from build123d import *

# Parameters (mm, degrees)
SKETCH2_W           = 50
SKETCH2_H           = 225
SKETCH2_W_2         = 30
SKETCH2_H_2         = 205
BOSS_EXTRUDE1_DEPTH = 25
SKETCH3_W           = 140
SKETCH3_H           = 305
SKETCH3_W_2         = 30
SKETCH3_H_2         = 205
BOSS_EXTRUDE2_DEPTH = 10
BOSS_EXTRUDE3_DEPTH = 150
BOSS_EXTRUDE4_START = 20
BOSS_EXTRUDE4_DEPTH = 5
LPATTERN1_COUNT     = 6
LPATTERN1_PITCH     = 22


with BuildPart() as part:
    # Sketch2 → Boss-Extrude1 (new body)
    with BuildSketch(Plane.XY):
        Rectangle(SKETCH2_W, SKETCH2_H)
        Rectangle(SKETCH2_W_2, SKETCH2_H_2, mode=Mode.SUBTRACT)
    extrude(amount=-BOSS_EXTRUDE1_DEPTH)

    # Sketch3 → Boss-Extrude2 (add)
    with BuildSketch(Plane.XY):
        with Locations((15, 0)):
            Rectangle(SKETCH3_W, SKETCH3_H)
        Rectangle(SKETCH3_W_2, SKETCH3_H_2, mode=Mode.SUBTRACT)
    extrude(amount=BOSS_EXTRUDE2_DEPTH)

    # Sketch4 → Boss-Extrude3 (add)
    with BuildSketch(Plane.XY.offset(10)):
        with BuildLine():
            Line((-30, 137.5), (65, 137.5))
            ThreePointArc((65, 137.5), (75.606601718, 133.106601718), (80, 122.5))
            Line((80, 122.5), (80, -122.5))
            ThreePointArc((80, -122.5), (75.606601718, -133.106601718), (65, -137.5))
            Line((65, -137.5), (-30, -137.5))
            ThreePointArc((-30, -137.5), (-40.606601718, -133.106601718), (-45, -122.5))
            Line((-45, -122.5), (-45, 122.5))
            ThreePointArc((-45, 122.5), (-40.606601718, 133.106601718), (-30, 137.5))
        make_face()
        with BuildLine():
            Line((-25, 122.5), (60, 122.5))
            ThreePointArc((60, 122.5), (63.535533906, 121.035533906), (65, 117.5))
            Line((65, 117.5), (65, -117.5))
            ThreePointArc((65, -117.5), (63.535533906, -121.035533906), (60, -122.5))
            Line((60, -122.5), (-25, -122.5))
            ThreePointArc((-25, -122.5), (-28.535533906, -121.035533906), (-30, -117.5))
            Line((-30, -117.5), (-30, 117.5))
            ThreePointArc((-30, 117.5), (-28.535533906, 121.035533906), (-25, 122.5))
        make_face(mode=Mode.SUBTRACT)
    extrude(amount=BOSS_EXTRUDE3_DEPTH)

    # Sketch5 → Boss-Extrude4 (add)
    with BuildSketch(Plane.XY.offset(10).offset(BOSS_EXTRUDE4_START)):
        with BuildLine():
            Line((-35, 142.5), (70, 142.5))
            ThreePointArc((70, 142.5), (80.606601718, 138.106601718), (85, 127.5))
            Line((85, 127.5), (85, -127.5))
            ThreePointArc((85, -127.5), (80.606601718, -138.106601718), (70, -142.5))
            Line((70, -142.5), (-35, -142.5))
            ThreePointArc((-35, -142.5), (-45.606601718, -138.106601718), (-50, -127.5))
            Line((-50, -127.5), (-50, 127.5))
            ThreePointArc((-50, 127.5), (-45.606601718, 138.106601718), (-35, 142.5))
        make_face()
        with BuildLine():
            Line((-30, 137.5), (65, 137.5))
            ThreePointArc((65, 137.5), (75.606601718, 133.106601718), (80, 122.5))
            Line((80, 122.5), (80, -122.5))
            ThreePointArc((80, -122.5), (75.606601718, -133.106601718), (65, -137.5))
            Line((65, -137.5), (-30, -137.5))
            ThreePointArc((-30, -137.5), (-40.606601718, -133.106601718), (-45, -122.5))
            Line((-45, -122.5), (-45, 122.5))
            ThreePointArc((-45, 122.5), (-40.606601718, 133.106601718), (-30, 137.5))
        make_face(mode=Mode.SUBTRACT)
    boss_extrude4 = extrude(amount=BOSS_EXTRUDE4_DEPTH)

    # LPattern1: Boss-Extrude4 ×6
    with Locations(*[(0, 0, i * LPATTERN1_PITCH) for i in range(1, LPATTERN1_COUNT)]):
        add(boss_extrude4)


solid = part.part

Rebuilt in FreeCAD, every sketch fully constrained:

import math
import FreeCAD as App
import Part
import Sketcher

V = App.Vector
Q = App.Units.Quantity

doc = App.newDocument("Part")
body = doc.addObject("PartDesign::Body", "Body")

sketch1 = body.newObject("Sketcher::SketchObject", "Sketch")
sketch1.AttachmentSupport = (doc.getObject("XY_Plane"), [""])
sketch1.MapMode = "FlatFace"
sketch1.addGeometry(Part.LineSegment(V(-25, 112, 0), V(-25, -112, 0)), False)
sketch1.addGeometry(Part.LineSegment(V(-25, -112, 0), V(25, -112, 0)), False)
sketch1.addGeometry(Part.LineSegment(V(25, -112, 0), V(25, 112, 0)), False)
sketch1.addGeometry(Part.LineSegment(V(25, 112, 0), V(-25, 112, 0)), False)
sketch1.addGeometry(Part.LineSegment(V(15, -102, 0), V(-15, -102, 0)), False)
sketch1.addGeometry(Part.LineSegment(V(-15, -102, 0), V(-15, 102, 0)), False)
sketch1.addGeometry(Part.LineSegment(V(-15, 102, 0), V(15, 102, 0)), False)
sketch1.addGeometry(Part.LineSegment(V(15, 102, 0), V(15, -102, 0)), False)
sketch1.addConstraint(Sketcher.Constraint("Coincident", 0, 2, 1, 1))
sketch1.addConstraint(Sketcher.Constraint("Coincident", 1, 2, 2, 1))
sketch1.addConstraint(Sketcher.Constraint("Coincident", 2, 2, 3, 1))
sketch1.addConstraint(Sketcher.Constraint("Coincident", 3, 2, 0, 1))
sketch1.addConstraint(Sketcher.Constraint("Coincident", 4, 2, 5, 1))
sketch1.addConstraint(Sketcher.Constraint("Coincident", 5, 2, 6, 1))
sketch1.addConstraint(Sketcher.Constraint("Coincident", 6, 2, 7, 1))
sketch1.addConstraint(Sketcher.Constraint("Coincident", 7, 2, 4, 1))
sketch1.addConstraint(Sketcher.Constraint("Vertical", 0))
sketch1.addConstraint(Sketcher.Constraint("Horizontal", 1))
sketch1.addConstraint(Sketcher.Constraint("Vertical", 2))
sketch1.addConstraint(Sketcher.Constraint("Horizontal", 3))
sketch1.addConstraint(Sketcher.Constraint("Horizontal", 4))
sketch1.addConstraint(Sketcher.Constraint("Vertical", 5))
sketch1.addConstraint(Sketcher.Constraint("Horizontal", 6))
sketch1.addConstraint(Sketcher.Constraint("Vertical", 7))
sketch1.addConstraint(Sketcher.Constraint("Symmetric", 0, 2, 2, 2, -1, 1))
sketch1.addConstraint(Sketcher.Constraint("Symmetric", 4, 2, 6, 2, -1, 1))
sketch1.addConstraint(Sketcher.Constraint("DistanceX", 1, 1, 1, 2, Q("50 mm")))
sketch1.addConstraint(Sketcher.Constraint("DistanceX", 4, 2, 4, 1, Q("30 mm")))
sketch1.addConstraint(Sketcher.Constraint("DistanceY", 0, 2, 0, 1, Q("225 mm")))
sketch1.addConstraint(Sketcher.Constraint("DistanceY", 5, 1, 5, 2, Q("205 mm")))
pad1 = body.newObject("PartDesign::Pad", "Pad")
pad1.Profile = sketch1
pad1.Length = 25
pad1.Reversed = True

sketch2 = body.newObject("Sketcher::SketchObject", "Sketch001")
sketch2.AttachmentSupport = (doc.getObject("XY_Plane"), [""])
sketch2.MapMode = "FlatFace"
sketch2.addGeometry(Part.LineSegment(V(-55, 152, 0), V(-55, -152, 0)), False)
sketch2.addGeometry(Part.LineSegment(V(-55, -152, 0), V(85, -152, 0)), False)
sketch2.addGeometry(Part.LineSegment(V(85, -152, 0), V(85, 152, 0)), False)
sketch2.addGeometry(Part.LineSegment(V(85, 152, 0), V(-55, 152, 0)), False)
sketch2.addGeometry(Part.LineSegment(V(15, -102, 0), V(-15, -102, 0)), False)
sketch2.addGeometry(Part.LineSegment(V(-15, -102, 0), V(-15, 102, 0)), False)
sketch2.addGeometry(Part.LineSegment(V(-15, 102, 0), V(15, 102, 0)), False)
sketch2.addGeometry(Part.LineSegment(V(15, 102, 0), V(15, -102, 0)), False)
sketch2.addConstraint(Sketcher.Constraint("Coincident", 0, 2, 1, 1))
sketch2.addConstraint(Sketcher.Constraint("Coincident", 1, 2, 2, 1))
sketch2.addConstraint(Sketcher.Constraint("Coincident", 2, 2, 3, 1))
sketch2.addConstraint(Sketcher.Constraint("Coincident", 3, 2, 0, 1))
sketch2.addConstraint(Sketcher.Constraint("Coincident", 4, 2, 5, 1))
sketch2.addConstraint(Sketcher.Constraint("Coincident", 5, 2, 6, 1))
sketch2.addConstraint(Sketcher.Constraint("Coincident", 6, 2, 7, 1))
sketch2.addConstraint(Sketcher.Constraint("Coincident", 7, 2, 4, 1))
sketch2.addConstraint(Sketcher.Constraint("Vertical", 0))
sketch2.addConstraint(Sketcher.Constraint("Horizontal", 1))
sketch2.addConstraint(Sketcher.Constraint("Vertical", 2))
sketch2.addConstraint(Sketcher.Constraint("Horizontal", 3))
sketch2.addConstraint(Sketcher.Constraint("Horizontal", 4))
sketch2.addConstraint(Sketcher.Constraint("Vertical", 5))
sketch2.addConstraint(Sketcher.Constraint("Horizontal", 6))
sketch2.addConstraint(Sketcher.Constraint("Vertical", 7))
sketch2.addConstraint(Sketcher.Constraint("Symmetric", 4, 2, 6, 2, -1, 1))
sketch2.addConstraint(Sketcher.Constraint("DistanceX", 1, 1, 1, 2, Q("140 mm")))
sketch2.addConstraint(Sketcher.Constraint("DistanceX", 4, 2, 4, 1, Q("30 mm")))
sketch2.addConstraint(Sketcher.Constraint("DistanceY", 0, 2, 0, 1, Q("305 mm")))
sketch2.addConstraint(Sketcher.Constraint("DistanceY", 5, 1, 5, 2, Q("205 mm")))
sketch2.addConstraint(Sketcher.Constraint("DistanceX", 0, 2, -1, 1, Q("55 mm")))
sketch2.addConstraint(Sketcher.Constraint("DistanceY", 0, 2, 4, 2, Q("50 mm")))
pad2 = body.newObject("PartDesign::Pad", "Pad001")
pad2.Profile = sketch2
pad2.Length = 10

sketch3 = body.newObject("Sketcher::SketchObject", "Sketch002")
sketch3.AttachmentSupport = (doc.getObject("XY_Plane"), [""])
sketch3.MapMode = "FlatFace"
sketch3.AttachmentOffset = App.Placement(V(0, 0, 10), App.Rotation())
sketch3.addGeometry(Part.LineSegment(V(65, 138, 0), V(-30, 138, 0)), False)
sketch3.addGeometry(Part.ArcOfCircle(Part.Circle(V(-30, 123, 0), V(0, 0, 1), 15), math.radians(90), math.radians(180)), False)
sketch3.addGeometry(Part.LineSegment(V(-45, 122, 0), V(-45, -122, 0)), False)
sketch3.addGeometry(Part.ArcOfCircle(Part.Circle(V(-30, -123, 0), V(0, 0, 1), 15), math.radians(180), math.radians(270)), False)
sketch3.addGeometry(Part.LineSegment(V(-30, -138, 0), V(65, -138, 0)), False)
sketch3.addGeometry(Part.ArcOfCircle(Part.Circle(V(65, -123, 0), V(0, 0, 1), 15), math.radians(-90), math.radians(0)), False)
sketch3.addGeometry(Part.LineSegment(V(80, -122, 0), V(80, 122, 0)), False)
sketch3.addGeometry(Part.ArcOfCircle(Part.Circle(V(65, 123, 0), V(0, 0, 1), 15), math.radians(0), math.radians(90)), False)
sketch3.addGeometry(Part.LineSegment(V(-25, 122, 0), V(60, 122, 0)), False)
sketch3.addGeometry(Part.ArcOfCircle(Part.Circle(V(60, 118, 0), V(0, 0, 1), 5), math.radians(0), math.radians(90)), False)
sketch3.addGeometry(Part.LineSegment(V(65, 118, 0), V(65, -118, 0)), False)
sketch3.addGeometry(Part.ArcOfCircle(Part.Circle(V(60, -118, 0), V(0, 0, 1), 5), math.radians(-90), math.radians(0)), False)
sketch3.addGeometry(Part.LineSegment(V(60, -122, 0), V(-25, -122, 0)), False)
sketch3.addGeometry(Part.ArcOfCircle(Part.Circle(V(-25, -118, 0), V(0, 0, 1), 5), math.radians(180), math.radians(270)), False)
sketch3.addGeometry(Part.LineSegment(V(-30, -118, 0), V(-30, 118, 0)), False)
sketch3.addGeometry(Part.ArcOfCircle(Part.Circle(V(-25, 118, 0), V(0, 0, 1), 5), math.radians(90), math.radians(180)), False)
sketch3.addConstraint(Sketcher.Constraint("Tangent", 0, 2, 1, 1))
sketch3.addConstraint(Sketcher.Constraint("Tangent", 1, 2, 2, 1))
sketch3.addConstraint(Sketcher.Constraint("Tangent", 2, 2, 3, 1))
sketch3.addConstraint(Sketcher.Constraint("Tangent", 3, 2, 4, 1))
sketch3.addConstraint(Sketcher.Constraint("Tangent", 4, 2, 5, 1))
sketch3.addConstraint(Sketcher.Constraint("Tangent", 5, 2, 6, 1))
sketch3.addConstraint(Sketcher.Constraint("Tangent", 6, 2, 7, 1))
sketch3.addConstraint(Sketcher.Constraint("Tangent", 7, 2, 0, 1))
sketch3.addConstraint(Sketcher.Constraint("Tangent", 8, 2, 9, 2))
sketch3.addConstraint(Sketcher.Constraint("Tangent", 9, 1, 10, 1))
sketch3.addConstraint(Sketcher.Constraint("Tangent", 10, 2, 11, 2))
sketch3.addConstraint(Sketcher.Constraint("Tangent", 11, 1, 12, 1))
sketch3.addConstraint(Sketcher.Constraint("Tangent", 12, 2, 13, 2))
sketch3.addConstraint(Sketcher.Constraint("Tangent", 13, 1, 14, 1))
sketch3.addConstraint(Sketcher.Constraint("Tangent", 14, 2, 15, 2))
sketch3.addConstraint(Sketcher.Constraint("Tangent", 15, 1, 8, 1))
sketch3.addConstraint(Sketcher.Constraint("Horizontal", 0))
sketch3.addConstraint(Sketcher.Constraint("Vertical", 2))
sketch3.addConstraint(Sketcher.Constraint("Horizontal", 4))
sketch3.addConstraint(Sketcher.Constraint("Vertical", 6))
sketch3.addConstraint(Sketcher.Constraint("Horizontal", 8))
sketch3.addConstraint(Sketcher.Constraint("Vertical", 10))
sketch3.addConstraint(Sketcher.Constraint("Horizontal", 12))
sketch3.addConstraint(Sketcher.Constraint("Vertical", 14))
sketch3.addConstraint(Sketcher.Constraint("Equal", 1, 3))
sketch3.addConstraint(Sketcher.Constraint("Equal", 3, 5))
sketch3.addConstraint(Sketcher.Constraint("Equal", 5, 7))
sketch3.addConstraint(Sketcher.Constraint("Equal", 9, 11))
sketch3.addConstraint(Sketcher.Constraint("Equal", 11, 13))
sketch3.addConstraint(Sketcher.Constraint("Equal", 13, 15))
sketch3.addConstraint(Sketcher.Constraint("Horizontal", 6, 2, 8, 2))
sketch3.addConstraint(Sketcher.Constraint("Horizontal", 5, 2, 11, 1))
sketch3.addConstraint(Sketcher.Constraint("Vertical", 7, 2, 9, 1))
sketch3.addConstraint(Sketcher.Constraint("Vertical", 3, 2, 13, 1))
sketch3.addConstraint(Sketcher.Constraint("Radius", 1, Q("15 mm")))
sketch3.addConstraint(Sketcher.Constraint("Radius", 9, Q("5 mm")))
sketch3.addConstraint(Sketcher.Constraint("DistanceX", 0, 2, 0, 1, Q("95 mm")))
sketch3.addConstraint(Sketcher.Constraint("DistanceY", 2, 2, 2, 1, Q("245 mm")))
sketch3.addConstraint(Sketcher.Constraint("DistanceX", 1, 3, -1, 1, Q("30 mm")))
sketch3.addConstraint(Sketcher.Constraint("DistanceY", -1, 1, 1, 3, Q("122.5 mm")))
pad3 = body.newObject("PartDesign::Pad", "Pad002")
pad3.Profile = sketch3
pad3.Length = 150

sketch4 = body.newObject("Sketcher::SketchObject", "Sketch003")
sketch4.AttachmentSupport = (doc.getObject("XY_Plane"), [""])
sketch4.MapMode = "FlatFace"
sketch4.AttachmentOffset = App.Placement(V(0, 0, 30), App.Rotation())
sketch4.addGeometry(Part.LineSegment(V(70, 142, 0), V(-35, 142, 0)), False)
sketch4.addGeometry(Part.ArcOfCircle(Part.Circle(V(-35, 128, 0), V(0, 0, 1), 15), math.radians(90), math.radians(180)), False)
sketch4.addGeometry(Part.LineSegment(V(-50, 128, 0), V(-50, -128, 0)), False)
sketch4.addGeometry(Part.ArcOfCircle(Part.Circle(V(-35, -128, 0), V(0, 0, 1), 15), math.radians(180), math.radians(270)), False)
sketch4.addGeometry(Part.LineSegment(V(-35, -142, 0), V(70, -142, 0)), False)
sketch4.addGeometry(Part.ArcOfCircle(Part.Circle(V(70, -128, 0), V(0, 0, 1), 15), math.radians(-90), math.radians(0)), False)
sketch4.addGeometry(Part.LineSegment(V(85, -128, 0), V(85, 128, 0)), False)
sketch4.addGeometry(Part.ArcOfCircle(Part.Circle(V(70, 128, 0), V(0, 0, 1), 15), math.radians(0), math.radians(90)), False)
sketch4.addGeometry(Part.LineSegment(V(-30, 138, 0), V(65, 138, 0)), False)
sketch4.addGeometry(Part.ArcOfCircle(Part.Circle(V(65, 123, 0), V(0, 0, 1), 15), math.radians(0), math.radians(90)), False)
sketch4.addGeometry(Part.LineSegment(V(80, 122, 0), V(80, -122, 0)), False)
sketch4.addGeometry(Part.ArcOfCircle(Part.Circle(V(65, -123, 0), V(0, 0, 1), 15), math.radians(-90), math.radians(0)), False)
sketch4.addGeometry(Part.LineSegment(V(65, -138, 0), V(-30, -138, 0)), False)
sketch4.addGeometry(Part.ArcOfCircle(Part.Circle(V(-30, -123, 0), V(0, 0, 1), 15), math.radians(180), math.radians(270)), False)
sketch4.addGeometry(Part.LineSegment(V(-45, -122, 0), V(-45, 122, 0)), False)
sketch4.addGeometry(Part.ArcOfCircle(Part.Circle(V(-30, 123, 0), V(0, 0, 1), 15), math.radians(90), math.radians(180)), False)
sketch4.addConstraint(Sketcher.Constraint("Tangent", 0, 2, 1, 1))
sketch4.addConstraint(Sketcher.Constraint("Tangent", 1, 2, 2, 1))
sketch4.addConstraint(Sketcher.Constraint("Tangent", 2, 2, 3, 1))
sketch4.addConstraint(Sketcher.Constraint("Tangent", 3, 2, 4, 1))
sketch4.addConstraint(Sketcher.Constraint("Tangent", 4, 2, 5, 1))
sketch4.addConstraint(Sketcher.Constraint("Tangent", 5, 2, 6, 1))
sketch4.addConstraint(Sketcher.Constraint("Tangent", 6, 2, 7, 1))
sketch4.addConstraint(Sketcher.Constraint("Tangent", 7, 2, 0, 1))
sketch4.addConstraint(Sketcher.Constraint("Tangent", 8, 2, 9, 2))
sketch4.addConstraint(Sketcher.Constraint("Tangent", 9, 1, 10, 1))
sketch4.addConstraint(Sketcher.Constraint("Tangent", 10, 2, 11, 2))
sketch4.addConstraint(Sketcher.Constraint("Tangent", 11, 1, 12, 1))
sketch4.addConstraint(Sketcher.Constraint("Tangent", 12, 2, 13, 2))
sketch4.addConstraint(Sketcher.Constraint("Tangent", 13, 1, 14, 1))
sketch4.addConstraint(Sketcher.Constraint("Tangent", 14, 2, 15, 2))
sketch4.addConstraint(Sketcher.Constraint("Tangent", 15, 1, 8, 1))
sketch4.addConstraint(Sketcher.Constraint("Horizontal", 0))
sketch4.addConstraint(Sketcher.Constraint("Vertical", 2))
sketch4.addConstraint(Sketcher.Constraint("Horizontal", 4))
sketch4.addConstraint(Sketcher.Constraint("Vertical", 6))
sketch4.addConstraint(Sketcher.Constraint("Horizontal", 8))
sketch4.addConstraint(Sketcher.Constraint("Vertical", 10))
sketch4.addConstraint(Sketcher.Constraint("Horizontal", 12))
sketch4.addConstraint(Sketcher.Constraint("Vertical", 14))
sketch4.addConstraint(Sketcher.Constraint("Equal", 1, 3))
sketch4.addConstraint(Sketcher.Constraint("Equal", 3, 5))
sketch4.addConstraint(Sketcher.Constraint("Equal", 5, 7))
sketch4.addConstraint(Sketcher.Constraint("Equal", 7, 9))
sketch4.addConstraint(Sketcher.Constraint("Equal", 9, 11))
sketch4.addConstraint(Sketcher.Constraint("Equal", 11, 13))
sketch4.addConstraint(Sketcher.Constraint("Equal", 13, 15))
sketch4.addConstraint(Sketcher.Constraint("Radius", 1, Q("15 mm")))
sketch4.addConstraint(Sketcher.Constraint("DistanceX", 0, 2, 0, 1, Q("105 mm")))
sketch4.addConstraint(Sketcher.Constraint("DistanceX", 8, 1, 8, 2, Q("95 mm")))
sketch4.addConstraint(Sketcher.Constraint("DistanceY", 2, 2, 2, 1, Q("255 mm")))
sketch4.addConstraint(Sketcher.Constraint("DistanceY", 10, 2, 10, 1, Q("245 mm")))
sketch4.addConstraint(Sketcher.Constraint("DistanceX", 1, 3, -1, 1, Q("35 mm")))
sketch4.addConstraint(Sketcher.Constraint("DistanceX", -1, 1, 9, 3, Q("65 mm")))
sketch4.addConstraint(Sketcher.Constraint("DistanceY", 9, 3, 7, 3, Q("5 mm")))
sketch4.addConstraint(Sketcher.Constraint("DistanceY", -1, 1, 1, 3, Q("127.5 mm")))
pad4 = body.newObject("PartDesign::Pad", "Pad003")
pad4.Profile = sketch4
pad4.Length = 5
doc.recompute()

linearpattern = body.newObject("PartDesign::LinearPattern", "LinearPattern")
linearpattern.Originals = [pad4]
linearpattern.Direction = (doc.getObject("Z_Axis"), [""])
linearpattern.Mode = "offset"
linearpattern.Offset = 22
linearpattern.Occurrences = 6
body.Tip = linearpattern

doc.recompute()
